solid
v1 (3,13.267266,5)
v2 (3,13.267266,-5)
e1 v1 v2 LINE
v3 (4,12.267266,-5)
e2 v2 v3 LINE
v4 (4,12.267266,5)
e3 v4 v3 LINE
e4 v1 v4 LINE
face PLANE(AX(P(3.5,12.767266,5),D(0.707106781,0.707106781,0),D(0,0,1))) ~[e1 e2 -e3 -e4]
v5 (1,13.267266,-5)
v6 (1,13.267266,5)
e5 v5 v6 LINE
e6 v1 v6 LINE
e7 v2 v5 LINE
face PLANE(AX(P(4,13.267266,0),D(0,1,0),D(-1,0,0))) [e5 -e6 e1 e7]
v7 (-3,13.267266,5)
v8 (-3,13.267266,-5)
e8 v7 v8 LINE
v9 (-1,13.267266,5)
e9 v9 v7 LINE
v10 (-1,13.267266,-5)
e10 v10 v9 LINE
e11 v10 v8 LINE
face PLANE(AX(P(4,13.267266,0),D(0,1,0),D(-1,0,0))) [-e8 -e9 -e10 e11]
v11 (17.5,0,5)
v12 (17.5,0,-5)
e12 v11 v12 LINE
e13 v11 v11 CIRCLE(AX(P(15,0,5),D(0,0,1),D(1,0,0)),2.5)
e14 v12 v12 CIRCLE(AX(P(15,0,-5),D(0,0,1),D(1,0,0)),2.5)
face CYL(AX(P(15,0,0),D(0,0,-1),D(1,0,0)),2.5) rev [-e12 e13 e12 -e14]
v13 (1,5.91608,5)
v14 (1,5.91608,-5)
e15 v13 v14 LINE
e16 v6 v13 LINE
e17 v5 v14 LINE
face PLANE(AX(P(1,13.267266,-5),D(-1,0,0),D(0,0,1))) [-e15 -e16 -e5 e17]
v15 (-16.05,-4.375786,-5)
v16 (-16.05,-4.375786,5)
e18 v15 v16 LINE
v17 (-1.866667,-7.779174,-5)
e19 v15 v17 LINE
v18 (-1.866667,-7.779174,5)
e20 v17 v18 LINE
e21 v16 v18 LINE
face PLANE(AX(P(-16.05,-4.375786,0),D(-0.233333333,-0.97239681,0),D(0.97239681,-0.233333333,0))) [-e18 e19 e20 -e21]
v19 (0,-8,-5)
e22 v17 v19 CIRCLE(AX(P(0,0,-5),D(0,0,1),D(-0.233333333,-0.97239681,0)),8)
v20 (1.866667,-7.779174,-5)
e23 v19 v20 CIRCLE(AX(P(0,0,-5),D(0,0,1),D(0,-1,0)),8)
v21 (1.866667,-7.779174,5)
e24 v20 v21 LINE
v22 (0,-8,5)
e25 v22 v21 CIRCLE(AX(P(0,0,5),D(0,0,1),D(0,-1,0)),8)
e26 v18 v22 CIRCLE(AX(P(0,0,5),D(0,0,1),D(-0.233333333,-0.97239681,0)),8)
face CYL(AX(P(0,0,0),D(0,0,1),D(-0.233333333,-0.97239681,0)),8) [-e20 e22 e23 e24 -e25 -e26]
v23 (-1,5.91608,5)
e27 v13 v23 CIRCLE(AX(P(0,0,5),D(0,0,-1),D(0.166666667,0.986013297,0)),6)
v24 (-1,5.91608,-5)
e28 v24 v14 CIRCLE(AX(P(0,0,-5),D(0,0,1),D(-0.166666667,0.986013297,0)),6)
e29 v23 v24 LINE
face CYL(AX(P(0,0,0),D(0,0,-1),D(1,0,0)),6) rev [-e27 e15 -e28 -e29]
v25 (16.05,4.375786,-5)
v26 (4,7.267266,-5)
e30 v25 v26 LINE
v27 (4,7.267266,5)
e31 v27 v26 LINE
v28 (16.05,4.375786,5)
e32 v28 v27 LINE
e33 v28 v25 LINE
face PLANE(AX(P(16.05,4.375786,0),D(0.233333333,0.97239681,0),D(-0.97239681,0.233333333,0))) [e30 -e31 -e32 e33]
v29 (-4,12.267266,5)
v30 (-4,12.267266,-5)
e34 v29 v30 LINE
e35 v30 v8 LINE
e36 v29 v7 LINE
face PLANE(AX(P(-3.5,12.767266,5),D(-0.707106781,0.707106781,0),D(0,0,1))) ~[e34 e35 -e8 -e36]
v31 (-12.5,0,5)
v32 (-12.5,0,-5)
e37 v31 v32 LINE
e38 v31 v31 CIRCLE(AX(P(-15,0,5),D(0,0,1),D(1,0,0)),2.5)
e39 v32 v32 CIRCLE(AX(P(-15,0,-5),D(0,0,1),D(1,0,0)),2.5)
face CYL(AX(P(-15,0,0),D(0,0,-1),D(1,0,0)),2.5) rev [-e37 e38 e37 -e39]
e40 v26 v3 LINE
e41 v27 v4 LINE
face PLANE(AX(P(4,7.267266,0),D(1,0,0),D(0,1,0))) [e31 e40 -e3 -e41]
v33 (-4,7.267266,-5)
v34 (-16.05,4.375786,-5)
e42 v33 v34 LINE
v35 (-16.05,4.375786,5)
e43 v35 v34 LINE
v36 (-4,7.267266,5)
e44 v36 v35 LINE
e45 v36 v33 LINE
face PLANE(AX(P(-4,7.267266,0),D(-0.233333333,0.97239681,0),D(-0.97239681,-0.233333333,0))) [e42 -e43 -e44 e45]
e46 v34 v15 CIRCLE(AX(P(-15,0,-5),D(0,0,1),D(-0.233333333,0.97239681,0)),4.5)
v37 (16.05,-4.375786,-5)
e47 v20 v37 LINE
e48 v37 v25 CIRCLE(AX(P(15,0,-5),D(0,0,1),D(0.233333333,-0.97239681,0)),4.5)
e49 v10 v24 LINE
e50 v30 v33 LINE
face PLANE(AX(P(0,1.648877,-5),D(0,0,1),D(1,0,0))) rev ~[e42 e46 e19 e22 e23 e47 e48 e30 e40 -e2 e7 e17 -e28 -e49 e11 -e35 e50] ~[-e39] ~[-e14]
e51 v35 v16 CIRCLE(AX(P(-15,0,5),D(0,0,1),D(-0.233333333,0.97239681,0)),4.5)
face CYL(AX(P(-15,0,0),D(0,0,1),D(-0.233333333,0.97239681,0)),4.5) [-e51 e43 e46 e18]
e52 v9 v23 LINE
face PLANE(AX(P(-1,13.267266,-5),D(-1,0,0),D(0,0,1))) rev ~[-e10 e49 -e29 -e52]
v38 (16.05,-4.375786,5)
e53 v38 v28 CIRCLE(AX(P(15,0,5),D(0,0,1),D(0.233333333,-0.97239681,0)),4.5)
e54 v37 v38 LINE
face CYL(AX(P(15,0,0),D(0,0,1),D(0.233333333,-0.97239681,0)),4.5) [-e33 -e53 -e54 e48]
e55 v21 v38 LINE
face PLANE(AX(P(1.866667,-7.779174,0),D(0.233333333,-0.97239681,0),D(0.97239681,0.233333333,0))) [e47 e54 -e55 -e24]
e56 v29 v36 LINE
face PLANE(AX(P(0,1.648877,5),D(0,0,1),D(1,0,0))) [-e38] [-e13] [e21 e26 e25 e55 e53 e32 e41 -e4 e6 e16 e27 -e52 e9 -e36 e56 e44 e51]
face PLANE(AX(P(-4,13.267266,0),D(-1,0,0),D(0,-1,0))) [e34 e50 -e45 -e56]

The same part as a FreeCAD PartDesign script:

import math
import FreeCAD as App
import Part
import Sketcher
from FreeCAD import Vector


def edges_at(feature, points):
    """Names of the edges that pass closest to the given points."""
    edges = feature.Shape.Edges
    near = lambda p: min(range(len(edges)), key=lambda i: edges[i].distToShape(Part.Vertex(*p))[0])
    return sorted({f"Edge{near(p) + 1}" for p in points})


def add_polygon(sketch, points):
    """Adds a closed chain of lines whose ends are joined by coincident constraints."""
    first, n = sketch.GeometryCount, len(points)
    for a, b in zip(points, points[1:] + points[:1]):
        sketch.addGeometry(Part.LineSegment(App.Vector(*a, 0), App.Vector(*b, 0)), False)
    for i in range(n):
        sketch.addConstraint(Sketcher.Constraint("Coincident", first + i, 2, first + (i + 1) % n, 1))

doc = App.newDocument("Part")
body = doc.addObject("PartDesign::Body", "Body")

sketch1 = body.newObject("Sketcher::SketchObject", "Sketch")
sketch1.AttachmentSupport = (doc.getObject("XY_Plane"), [""])
sketch1.MapMode = "FlatFace"
sketch1.addGeometry([
    Part.ArcOfCircle(Part.Circle(Vector(-15, 0, 0), Vector(0, 0, 1), 4.5), math.radians(103), math.radians(257)),
    Part.LineSegment(Vector(-16.1, -4.4, 0), Vector(-1.9, -7.8, 0)),
    Part.ArcOfCircle(Part.Circle(Vector(0, 0, 0), Vector(0, 0, 1), 8), math.radians(-103.49), math.radians(-90)),
    Part.ArcOfCircle(Part.Circle(Vector(0, 0, 0), Vector(0, 0, 1), 8), math.radians(-90), math.radians(-76.51)),
    Part.LineSegment(Vector(1.9, -7.8, 0), Vector(16.1, -4.4, 0)),
    Part.ArcOfCircle(Part.Circle(Vector(15, 0, 0), Vector(0, 0, 1), 4.5), math.radians(-77), math.radians(77)),
    Part.LineSegment(Vector(16.1, 4.4, 0), Vector(4, 7.3, 0)),
    Part.LineSegment(Vector(4, 7.3, 0), Vector(4, 13.3, 0)),
    Part.LineSegment(Vector(4, 13.3, 0), Vector(-4, 13.3, 0)),
    Part.LineSegment(Vector(-4, 13.3, 0), Vector(-4, 7.3, 0)),
    Part.LineSegment(Vector(-4, 7.3, 0), Vector(-16.1, 4.4, 0)),
    Part.Circle(Vector(-15, 0, 0), Vector(0, 0, 1), 2.5),
    Part.Circle(Vector(0, 0, 0), Vector(0, 0, 1), 6),
    Part.Circle(Vector(15, 0, 0), Vector(0, 0, 1), 2.5),
], False)
sketch1.addConstraint([
    Sketcher.Constraint("Tangent", 0, 2, 1, 1),
    Sketcher.Constraint("Tangent", 1, 2, 2, 1),
    Sketcher.Constraint("Tangent", 2, 2, 3, 1),
    Sketcher.Constraint("Tangent", 3, 2, 4, 1),
    Sketcher.Constraint("Tangent", 4, 2, 5, 1),
    Sketcher.Constraint("Tangent", 5, 2, 6, 1),
    Sketcher.Constraint("Coincident", 6, 2, 7, 1),
    Sketcher.Constraint("Coincident", 7, 2, 8, 1),
    Sketcher.Constraint("Coincident", 8, 2, 9, 1),
    Sketcher.Constraint("Coincident", 9, 2, 10, 1),
    Sketcher.Constraint("Tangent", 10, 2, 0, 1),
    Sketcher.Constraint("Vertical", 7),
    Sketcher.Constraint("Horizontal", 8),
    Sketcher.Constraint("Vertical", 9),
    Sketcher.Constraint("Coincident", 2, 3, -1, 1),
    Sketcher.Constraint("Coincident", 12, 3, -1, 1),
    Sketcher.Constraint("Coincident", 11, 3, 0, 3),
    Sketcher.Constraint("Coincident", 13, 3, 5, 3),
    Sketcher.Constraint("Equal", 2, 3),
    Sketcher.Constraint("Equal", 0, 5),
    Sketcher.Constraint("Equal", 11, 13),
    Sketcher.Constraint("Symmetric", 0, 3, 5, 3, -1, 1),
    Sketcher.Constraint("Symmetric", 6, 2, 9, 2, -2),
    Sketcher.Constraint("Symmetric", 4, 2, 5, 2, -1),
    Sketcher.Constraint("PointOnObject", 2, 2, -2),
    Sketcher.Constraint("Diameter", 11, 5.0),
    Sketcher.Constraint("Diameter", 12, 12.0),
    Sketcher.Constraint("Radius", 2, 8.0),
    Sketcher.Constraint("Radius", 0, 4.5),
    Sketcher.Constraint("DistanceX", 8, 2, 8, 1, 8.0),
    Sketcher.Constraint("DistanceY", 7, 1, 7, 2, 6.0),
    Sketcher.Constraint("DistanceX", 0, 3, -1, 1, 15.0),
])
pad1 = body.newObject("PartDesign::Pad", "Pad")
pad1.Profile = sketch1
pad1.Length = 10
pad1.Midplane = True

sketch2 = body.newObject("Sketcher::SketchObject", "Sketch001")
sketch2.AttachmentSupport = (doc.getObject("XZ_Plane"), [""])
sketch2.MapMode = "FlatFace"
sketch2.AttachmentOffset = App.Placement(Vector(0, 0, -13.267266), App.Rotation())
add_polygon(sketch2, [(1, 5), (1, -5), (-1, -5), (-1, 5)])
sketch2.addConstraint([
    Sketcher.Constraint("Vertical", 0),
    Sketcher.Constraint("Horizontal", 1),
    Sketcher.Constraint("Vertical", 2),
    Sketcher.Constraint("Horizontal", 3),
    Sketcher.Constraint("Symmetric", 0, 2, 2, 2, -1, 1),
    Sketcher.Constraint("DistanceX", 1, 2, 1, 1, 2.0),
    Sketcher.Constraint("DistanceY", 0, 2, 0, 1, 10.0),
])
pocket1 = body.newObject("PartDesign::Pocket", "Pocket")
pocket1.Profile = sketch2
pocket1.Length = 7.352187
pocket1.Reversed = True
doc.recompute()

chamfer = body.newObject("PartDesign::Chamfer", "Chamfer")
chamfer.Base = (pocket1, edges_at(pocket1, [(-4, 13.267, 0), (4, 13.267, 0)]))
chamfer.Size = 1

doc.recompute()
